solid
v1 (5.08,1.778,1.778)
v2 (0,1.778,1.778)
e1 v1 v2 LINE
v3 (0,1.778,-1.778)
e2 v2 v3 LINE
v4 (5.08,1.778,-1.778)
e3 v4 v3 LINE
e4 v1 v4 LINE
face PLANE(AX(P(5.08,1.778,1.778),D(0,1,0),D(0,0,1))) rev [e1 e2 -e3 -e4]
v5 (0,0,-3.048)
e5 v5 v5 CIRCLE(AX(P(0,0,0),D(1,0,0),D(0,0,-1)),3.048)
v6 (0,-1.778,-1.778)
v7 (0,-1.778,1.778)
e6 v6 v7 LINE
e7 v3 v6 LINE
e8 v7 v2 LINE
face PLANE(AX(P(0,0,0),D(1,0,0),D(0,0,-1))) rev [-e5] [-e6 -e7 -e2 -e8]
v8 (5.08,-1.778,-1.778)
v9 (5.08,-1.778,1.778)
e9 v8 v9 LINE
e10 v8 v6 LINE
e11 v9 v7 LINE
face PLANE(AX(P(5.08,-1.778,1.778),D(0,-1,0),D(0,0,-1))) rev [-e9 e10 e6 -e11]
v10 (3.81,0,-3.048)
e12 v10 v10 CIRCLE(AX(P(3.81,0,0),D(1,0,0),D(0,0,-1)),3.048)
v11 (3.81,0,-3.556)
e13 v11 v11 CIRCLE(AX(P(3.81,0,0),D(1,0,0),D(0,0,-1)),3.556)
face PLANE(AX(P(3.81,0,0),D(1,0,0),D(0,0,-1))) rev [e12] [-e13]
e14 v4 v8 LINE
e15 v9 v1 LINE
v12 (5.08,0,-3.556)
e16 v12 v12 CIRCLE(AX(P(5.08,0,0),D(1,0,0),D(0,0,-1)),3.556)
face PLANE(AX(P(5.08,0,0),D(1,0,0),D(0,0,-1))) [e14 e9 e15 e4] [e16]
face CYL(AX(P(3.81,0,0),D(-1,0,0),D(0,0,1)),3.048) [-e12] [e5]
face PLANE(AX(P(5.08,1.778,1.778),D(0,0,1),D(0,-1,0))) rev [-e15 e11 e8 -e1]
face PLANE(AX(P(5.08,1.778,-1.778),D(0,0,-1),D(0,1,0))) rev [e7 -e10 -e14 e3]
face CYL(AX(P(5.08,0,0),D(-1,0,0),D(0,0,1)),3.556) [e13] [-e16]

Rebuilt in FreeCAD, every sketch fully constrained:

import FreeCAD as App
import Part
import Sketcher

V = App.Vector
Q = App.Units.Quantity


def add_polygon(sketch, points):
    """Adds a closed chain of lines whose ends are joined by coincident constraints."""
    first, n = sketch.GeometryCount, len(points)
    for a, b in zip(points, points[1:] + points[:1]):
        sketch.addGeometry(Part.LineSegment(App.Vector(*a, 0), App.Vector(*b, 0)), False)
    for i in range(n):
        sketch.addConstraint(Sketcher.Constraint("Coincident", first + i, 2, first + (i + 1) % n, 1))

doc = App.newDocument("Part")
params = doc.addObject("Spreadsheet::Sheet", "Params")
for row, (alias, value) in enumerate([
    ("sketch1_diameter", "0.24 in"),
    ("pad1_length", "0.15 in"),
    ("sketch2_diameter", "0.28 in"),
    ("pad2_length", "0.05 in"),
    ("sketch3_width", "0.14 in"),
], start=1):
    params.set(f"A{row}", alias)
    params.set(f"B{row}", "=" + value)
    params.setAlias(f"B{row}", alias)

body = doc.addObject("PartDesign::Body", "Body")

# Sketch on YZ plane
sketch1 = doc.addObject("Sketcher::SketchObject", "Sketch")
body.addObject(sketch1)
sketch1.AttachmentSupport = (doc.YZ_Plane, [""])
sketch1.MapMode = "FlatFace"
sketch1.addGeometry(Part.Circle(V(0, 0, 0), V(0, 0, 1), 3), False)
sketch1.addConstraint([
    Sketcher.Constraint("Coincident", 0, 3, -1, 1),
    Sketcher.Constraint("Diameter", 0, Q("0.24 in")),
])
sketch1.setExpression("Constraints[1]", "Params.sketch1_diameter")
pad1 = doc.addObject("PartDesign::Pad", "Pad")
body.addObject(pad1)
pad1.Profile = sketch1
pad1.setExpression("Length", "Params.pad1_length")

# Sketch on YZ plane
sketch2 = doc.addObject("Sketcher::SketchObject", "Sketch001")
body.addObject(sketch2)
sketch2.AttachmentSupport = (doc.YZ_Plane, [""])
sketch2.MapMode = "FlatFace"
sketch2.AttachmentOffset = App.Placement(V(0, 0, 0.15 * 25.4), App.Rotation())
sketch2.addGeometry(Part.Circle(V(0, 0, 0), V(0, 0, 1), 3.6), False)
sketch2.addConstraint([
    Sketcher.Constraint("Coincident", 0, 3, -1, 1),
    Sketcher.Constraint("Diameter", 0, Q("0.28 in")),
])
sketch2.setExpression("Constraints[1]", "Params.sketch2_diameter")
pad2 = doc.addObject("PartDesign::Pad", "Pad001")
body.addObject(pad2)
pad2.Profile = sketch2
pad2.setExpression("Length", "Params.pad2_length")

# Sketch on YZ plane
sketch3 = doc.addObject("Sketcher::SketchObject", "Sketch002")
body.addObject(sketch3)
sketch3.AttachmentSupport = (doc.YZ_Plane, [""])
sketch3.MapMode = "FlatFace"
add_polygon(sketch3, [(1.8, -1.8), (-1.8, -1.8), (-1.8, 1.8), (1.8, 1.8)])  # lines 0-3
sketch3.addConstraint([
    Sketcher.Constraint("Horizontal", 0),
    Sketcher.Constraint("Vertical", 1),
    Sketcher.Constraint("Horizontal", 2),
    Sketcher.Constraint("Vertical", 3),
    Sketcher.Constraint("Symmetric", 0, 2, 2, 2, -1, 1),
    Sketcher.Constraint("Equal", 2, 1),
    Sketcher.Constraint("DistanceX", 0, 2, 0, 1, Q("0.14 in")),
])
sketch3.setExpression("Constraints[10]", "Params.sketch3_width")
pocket1 = doc.addObject("PartDesign::Pocket", "Pocket")
body.addObject(pocket1)
pocket1.Profile = sketch3
pocket1.Type = "ThroughAll"
pocket1.Reversed = True

doc.recompute()
